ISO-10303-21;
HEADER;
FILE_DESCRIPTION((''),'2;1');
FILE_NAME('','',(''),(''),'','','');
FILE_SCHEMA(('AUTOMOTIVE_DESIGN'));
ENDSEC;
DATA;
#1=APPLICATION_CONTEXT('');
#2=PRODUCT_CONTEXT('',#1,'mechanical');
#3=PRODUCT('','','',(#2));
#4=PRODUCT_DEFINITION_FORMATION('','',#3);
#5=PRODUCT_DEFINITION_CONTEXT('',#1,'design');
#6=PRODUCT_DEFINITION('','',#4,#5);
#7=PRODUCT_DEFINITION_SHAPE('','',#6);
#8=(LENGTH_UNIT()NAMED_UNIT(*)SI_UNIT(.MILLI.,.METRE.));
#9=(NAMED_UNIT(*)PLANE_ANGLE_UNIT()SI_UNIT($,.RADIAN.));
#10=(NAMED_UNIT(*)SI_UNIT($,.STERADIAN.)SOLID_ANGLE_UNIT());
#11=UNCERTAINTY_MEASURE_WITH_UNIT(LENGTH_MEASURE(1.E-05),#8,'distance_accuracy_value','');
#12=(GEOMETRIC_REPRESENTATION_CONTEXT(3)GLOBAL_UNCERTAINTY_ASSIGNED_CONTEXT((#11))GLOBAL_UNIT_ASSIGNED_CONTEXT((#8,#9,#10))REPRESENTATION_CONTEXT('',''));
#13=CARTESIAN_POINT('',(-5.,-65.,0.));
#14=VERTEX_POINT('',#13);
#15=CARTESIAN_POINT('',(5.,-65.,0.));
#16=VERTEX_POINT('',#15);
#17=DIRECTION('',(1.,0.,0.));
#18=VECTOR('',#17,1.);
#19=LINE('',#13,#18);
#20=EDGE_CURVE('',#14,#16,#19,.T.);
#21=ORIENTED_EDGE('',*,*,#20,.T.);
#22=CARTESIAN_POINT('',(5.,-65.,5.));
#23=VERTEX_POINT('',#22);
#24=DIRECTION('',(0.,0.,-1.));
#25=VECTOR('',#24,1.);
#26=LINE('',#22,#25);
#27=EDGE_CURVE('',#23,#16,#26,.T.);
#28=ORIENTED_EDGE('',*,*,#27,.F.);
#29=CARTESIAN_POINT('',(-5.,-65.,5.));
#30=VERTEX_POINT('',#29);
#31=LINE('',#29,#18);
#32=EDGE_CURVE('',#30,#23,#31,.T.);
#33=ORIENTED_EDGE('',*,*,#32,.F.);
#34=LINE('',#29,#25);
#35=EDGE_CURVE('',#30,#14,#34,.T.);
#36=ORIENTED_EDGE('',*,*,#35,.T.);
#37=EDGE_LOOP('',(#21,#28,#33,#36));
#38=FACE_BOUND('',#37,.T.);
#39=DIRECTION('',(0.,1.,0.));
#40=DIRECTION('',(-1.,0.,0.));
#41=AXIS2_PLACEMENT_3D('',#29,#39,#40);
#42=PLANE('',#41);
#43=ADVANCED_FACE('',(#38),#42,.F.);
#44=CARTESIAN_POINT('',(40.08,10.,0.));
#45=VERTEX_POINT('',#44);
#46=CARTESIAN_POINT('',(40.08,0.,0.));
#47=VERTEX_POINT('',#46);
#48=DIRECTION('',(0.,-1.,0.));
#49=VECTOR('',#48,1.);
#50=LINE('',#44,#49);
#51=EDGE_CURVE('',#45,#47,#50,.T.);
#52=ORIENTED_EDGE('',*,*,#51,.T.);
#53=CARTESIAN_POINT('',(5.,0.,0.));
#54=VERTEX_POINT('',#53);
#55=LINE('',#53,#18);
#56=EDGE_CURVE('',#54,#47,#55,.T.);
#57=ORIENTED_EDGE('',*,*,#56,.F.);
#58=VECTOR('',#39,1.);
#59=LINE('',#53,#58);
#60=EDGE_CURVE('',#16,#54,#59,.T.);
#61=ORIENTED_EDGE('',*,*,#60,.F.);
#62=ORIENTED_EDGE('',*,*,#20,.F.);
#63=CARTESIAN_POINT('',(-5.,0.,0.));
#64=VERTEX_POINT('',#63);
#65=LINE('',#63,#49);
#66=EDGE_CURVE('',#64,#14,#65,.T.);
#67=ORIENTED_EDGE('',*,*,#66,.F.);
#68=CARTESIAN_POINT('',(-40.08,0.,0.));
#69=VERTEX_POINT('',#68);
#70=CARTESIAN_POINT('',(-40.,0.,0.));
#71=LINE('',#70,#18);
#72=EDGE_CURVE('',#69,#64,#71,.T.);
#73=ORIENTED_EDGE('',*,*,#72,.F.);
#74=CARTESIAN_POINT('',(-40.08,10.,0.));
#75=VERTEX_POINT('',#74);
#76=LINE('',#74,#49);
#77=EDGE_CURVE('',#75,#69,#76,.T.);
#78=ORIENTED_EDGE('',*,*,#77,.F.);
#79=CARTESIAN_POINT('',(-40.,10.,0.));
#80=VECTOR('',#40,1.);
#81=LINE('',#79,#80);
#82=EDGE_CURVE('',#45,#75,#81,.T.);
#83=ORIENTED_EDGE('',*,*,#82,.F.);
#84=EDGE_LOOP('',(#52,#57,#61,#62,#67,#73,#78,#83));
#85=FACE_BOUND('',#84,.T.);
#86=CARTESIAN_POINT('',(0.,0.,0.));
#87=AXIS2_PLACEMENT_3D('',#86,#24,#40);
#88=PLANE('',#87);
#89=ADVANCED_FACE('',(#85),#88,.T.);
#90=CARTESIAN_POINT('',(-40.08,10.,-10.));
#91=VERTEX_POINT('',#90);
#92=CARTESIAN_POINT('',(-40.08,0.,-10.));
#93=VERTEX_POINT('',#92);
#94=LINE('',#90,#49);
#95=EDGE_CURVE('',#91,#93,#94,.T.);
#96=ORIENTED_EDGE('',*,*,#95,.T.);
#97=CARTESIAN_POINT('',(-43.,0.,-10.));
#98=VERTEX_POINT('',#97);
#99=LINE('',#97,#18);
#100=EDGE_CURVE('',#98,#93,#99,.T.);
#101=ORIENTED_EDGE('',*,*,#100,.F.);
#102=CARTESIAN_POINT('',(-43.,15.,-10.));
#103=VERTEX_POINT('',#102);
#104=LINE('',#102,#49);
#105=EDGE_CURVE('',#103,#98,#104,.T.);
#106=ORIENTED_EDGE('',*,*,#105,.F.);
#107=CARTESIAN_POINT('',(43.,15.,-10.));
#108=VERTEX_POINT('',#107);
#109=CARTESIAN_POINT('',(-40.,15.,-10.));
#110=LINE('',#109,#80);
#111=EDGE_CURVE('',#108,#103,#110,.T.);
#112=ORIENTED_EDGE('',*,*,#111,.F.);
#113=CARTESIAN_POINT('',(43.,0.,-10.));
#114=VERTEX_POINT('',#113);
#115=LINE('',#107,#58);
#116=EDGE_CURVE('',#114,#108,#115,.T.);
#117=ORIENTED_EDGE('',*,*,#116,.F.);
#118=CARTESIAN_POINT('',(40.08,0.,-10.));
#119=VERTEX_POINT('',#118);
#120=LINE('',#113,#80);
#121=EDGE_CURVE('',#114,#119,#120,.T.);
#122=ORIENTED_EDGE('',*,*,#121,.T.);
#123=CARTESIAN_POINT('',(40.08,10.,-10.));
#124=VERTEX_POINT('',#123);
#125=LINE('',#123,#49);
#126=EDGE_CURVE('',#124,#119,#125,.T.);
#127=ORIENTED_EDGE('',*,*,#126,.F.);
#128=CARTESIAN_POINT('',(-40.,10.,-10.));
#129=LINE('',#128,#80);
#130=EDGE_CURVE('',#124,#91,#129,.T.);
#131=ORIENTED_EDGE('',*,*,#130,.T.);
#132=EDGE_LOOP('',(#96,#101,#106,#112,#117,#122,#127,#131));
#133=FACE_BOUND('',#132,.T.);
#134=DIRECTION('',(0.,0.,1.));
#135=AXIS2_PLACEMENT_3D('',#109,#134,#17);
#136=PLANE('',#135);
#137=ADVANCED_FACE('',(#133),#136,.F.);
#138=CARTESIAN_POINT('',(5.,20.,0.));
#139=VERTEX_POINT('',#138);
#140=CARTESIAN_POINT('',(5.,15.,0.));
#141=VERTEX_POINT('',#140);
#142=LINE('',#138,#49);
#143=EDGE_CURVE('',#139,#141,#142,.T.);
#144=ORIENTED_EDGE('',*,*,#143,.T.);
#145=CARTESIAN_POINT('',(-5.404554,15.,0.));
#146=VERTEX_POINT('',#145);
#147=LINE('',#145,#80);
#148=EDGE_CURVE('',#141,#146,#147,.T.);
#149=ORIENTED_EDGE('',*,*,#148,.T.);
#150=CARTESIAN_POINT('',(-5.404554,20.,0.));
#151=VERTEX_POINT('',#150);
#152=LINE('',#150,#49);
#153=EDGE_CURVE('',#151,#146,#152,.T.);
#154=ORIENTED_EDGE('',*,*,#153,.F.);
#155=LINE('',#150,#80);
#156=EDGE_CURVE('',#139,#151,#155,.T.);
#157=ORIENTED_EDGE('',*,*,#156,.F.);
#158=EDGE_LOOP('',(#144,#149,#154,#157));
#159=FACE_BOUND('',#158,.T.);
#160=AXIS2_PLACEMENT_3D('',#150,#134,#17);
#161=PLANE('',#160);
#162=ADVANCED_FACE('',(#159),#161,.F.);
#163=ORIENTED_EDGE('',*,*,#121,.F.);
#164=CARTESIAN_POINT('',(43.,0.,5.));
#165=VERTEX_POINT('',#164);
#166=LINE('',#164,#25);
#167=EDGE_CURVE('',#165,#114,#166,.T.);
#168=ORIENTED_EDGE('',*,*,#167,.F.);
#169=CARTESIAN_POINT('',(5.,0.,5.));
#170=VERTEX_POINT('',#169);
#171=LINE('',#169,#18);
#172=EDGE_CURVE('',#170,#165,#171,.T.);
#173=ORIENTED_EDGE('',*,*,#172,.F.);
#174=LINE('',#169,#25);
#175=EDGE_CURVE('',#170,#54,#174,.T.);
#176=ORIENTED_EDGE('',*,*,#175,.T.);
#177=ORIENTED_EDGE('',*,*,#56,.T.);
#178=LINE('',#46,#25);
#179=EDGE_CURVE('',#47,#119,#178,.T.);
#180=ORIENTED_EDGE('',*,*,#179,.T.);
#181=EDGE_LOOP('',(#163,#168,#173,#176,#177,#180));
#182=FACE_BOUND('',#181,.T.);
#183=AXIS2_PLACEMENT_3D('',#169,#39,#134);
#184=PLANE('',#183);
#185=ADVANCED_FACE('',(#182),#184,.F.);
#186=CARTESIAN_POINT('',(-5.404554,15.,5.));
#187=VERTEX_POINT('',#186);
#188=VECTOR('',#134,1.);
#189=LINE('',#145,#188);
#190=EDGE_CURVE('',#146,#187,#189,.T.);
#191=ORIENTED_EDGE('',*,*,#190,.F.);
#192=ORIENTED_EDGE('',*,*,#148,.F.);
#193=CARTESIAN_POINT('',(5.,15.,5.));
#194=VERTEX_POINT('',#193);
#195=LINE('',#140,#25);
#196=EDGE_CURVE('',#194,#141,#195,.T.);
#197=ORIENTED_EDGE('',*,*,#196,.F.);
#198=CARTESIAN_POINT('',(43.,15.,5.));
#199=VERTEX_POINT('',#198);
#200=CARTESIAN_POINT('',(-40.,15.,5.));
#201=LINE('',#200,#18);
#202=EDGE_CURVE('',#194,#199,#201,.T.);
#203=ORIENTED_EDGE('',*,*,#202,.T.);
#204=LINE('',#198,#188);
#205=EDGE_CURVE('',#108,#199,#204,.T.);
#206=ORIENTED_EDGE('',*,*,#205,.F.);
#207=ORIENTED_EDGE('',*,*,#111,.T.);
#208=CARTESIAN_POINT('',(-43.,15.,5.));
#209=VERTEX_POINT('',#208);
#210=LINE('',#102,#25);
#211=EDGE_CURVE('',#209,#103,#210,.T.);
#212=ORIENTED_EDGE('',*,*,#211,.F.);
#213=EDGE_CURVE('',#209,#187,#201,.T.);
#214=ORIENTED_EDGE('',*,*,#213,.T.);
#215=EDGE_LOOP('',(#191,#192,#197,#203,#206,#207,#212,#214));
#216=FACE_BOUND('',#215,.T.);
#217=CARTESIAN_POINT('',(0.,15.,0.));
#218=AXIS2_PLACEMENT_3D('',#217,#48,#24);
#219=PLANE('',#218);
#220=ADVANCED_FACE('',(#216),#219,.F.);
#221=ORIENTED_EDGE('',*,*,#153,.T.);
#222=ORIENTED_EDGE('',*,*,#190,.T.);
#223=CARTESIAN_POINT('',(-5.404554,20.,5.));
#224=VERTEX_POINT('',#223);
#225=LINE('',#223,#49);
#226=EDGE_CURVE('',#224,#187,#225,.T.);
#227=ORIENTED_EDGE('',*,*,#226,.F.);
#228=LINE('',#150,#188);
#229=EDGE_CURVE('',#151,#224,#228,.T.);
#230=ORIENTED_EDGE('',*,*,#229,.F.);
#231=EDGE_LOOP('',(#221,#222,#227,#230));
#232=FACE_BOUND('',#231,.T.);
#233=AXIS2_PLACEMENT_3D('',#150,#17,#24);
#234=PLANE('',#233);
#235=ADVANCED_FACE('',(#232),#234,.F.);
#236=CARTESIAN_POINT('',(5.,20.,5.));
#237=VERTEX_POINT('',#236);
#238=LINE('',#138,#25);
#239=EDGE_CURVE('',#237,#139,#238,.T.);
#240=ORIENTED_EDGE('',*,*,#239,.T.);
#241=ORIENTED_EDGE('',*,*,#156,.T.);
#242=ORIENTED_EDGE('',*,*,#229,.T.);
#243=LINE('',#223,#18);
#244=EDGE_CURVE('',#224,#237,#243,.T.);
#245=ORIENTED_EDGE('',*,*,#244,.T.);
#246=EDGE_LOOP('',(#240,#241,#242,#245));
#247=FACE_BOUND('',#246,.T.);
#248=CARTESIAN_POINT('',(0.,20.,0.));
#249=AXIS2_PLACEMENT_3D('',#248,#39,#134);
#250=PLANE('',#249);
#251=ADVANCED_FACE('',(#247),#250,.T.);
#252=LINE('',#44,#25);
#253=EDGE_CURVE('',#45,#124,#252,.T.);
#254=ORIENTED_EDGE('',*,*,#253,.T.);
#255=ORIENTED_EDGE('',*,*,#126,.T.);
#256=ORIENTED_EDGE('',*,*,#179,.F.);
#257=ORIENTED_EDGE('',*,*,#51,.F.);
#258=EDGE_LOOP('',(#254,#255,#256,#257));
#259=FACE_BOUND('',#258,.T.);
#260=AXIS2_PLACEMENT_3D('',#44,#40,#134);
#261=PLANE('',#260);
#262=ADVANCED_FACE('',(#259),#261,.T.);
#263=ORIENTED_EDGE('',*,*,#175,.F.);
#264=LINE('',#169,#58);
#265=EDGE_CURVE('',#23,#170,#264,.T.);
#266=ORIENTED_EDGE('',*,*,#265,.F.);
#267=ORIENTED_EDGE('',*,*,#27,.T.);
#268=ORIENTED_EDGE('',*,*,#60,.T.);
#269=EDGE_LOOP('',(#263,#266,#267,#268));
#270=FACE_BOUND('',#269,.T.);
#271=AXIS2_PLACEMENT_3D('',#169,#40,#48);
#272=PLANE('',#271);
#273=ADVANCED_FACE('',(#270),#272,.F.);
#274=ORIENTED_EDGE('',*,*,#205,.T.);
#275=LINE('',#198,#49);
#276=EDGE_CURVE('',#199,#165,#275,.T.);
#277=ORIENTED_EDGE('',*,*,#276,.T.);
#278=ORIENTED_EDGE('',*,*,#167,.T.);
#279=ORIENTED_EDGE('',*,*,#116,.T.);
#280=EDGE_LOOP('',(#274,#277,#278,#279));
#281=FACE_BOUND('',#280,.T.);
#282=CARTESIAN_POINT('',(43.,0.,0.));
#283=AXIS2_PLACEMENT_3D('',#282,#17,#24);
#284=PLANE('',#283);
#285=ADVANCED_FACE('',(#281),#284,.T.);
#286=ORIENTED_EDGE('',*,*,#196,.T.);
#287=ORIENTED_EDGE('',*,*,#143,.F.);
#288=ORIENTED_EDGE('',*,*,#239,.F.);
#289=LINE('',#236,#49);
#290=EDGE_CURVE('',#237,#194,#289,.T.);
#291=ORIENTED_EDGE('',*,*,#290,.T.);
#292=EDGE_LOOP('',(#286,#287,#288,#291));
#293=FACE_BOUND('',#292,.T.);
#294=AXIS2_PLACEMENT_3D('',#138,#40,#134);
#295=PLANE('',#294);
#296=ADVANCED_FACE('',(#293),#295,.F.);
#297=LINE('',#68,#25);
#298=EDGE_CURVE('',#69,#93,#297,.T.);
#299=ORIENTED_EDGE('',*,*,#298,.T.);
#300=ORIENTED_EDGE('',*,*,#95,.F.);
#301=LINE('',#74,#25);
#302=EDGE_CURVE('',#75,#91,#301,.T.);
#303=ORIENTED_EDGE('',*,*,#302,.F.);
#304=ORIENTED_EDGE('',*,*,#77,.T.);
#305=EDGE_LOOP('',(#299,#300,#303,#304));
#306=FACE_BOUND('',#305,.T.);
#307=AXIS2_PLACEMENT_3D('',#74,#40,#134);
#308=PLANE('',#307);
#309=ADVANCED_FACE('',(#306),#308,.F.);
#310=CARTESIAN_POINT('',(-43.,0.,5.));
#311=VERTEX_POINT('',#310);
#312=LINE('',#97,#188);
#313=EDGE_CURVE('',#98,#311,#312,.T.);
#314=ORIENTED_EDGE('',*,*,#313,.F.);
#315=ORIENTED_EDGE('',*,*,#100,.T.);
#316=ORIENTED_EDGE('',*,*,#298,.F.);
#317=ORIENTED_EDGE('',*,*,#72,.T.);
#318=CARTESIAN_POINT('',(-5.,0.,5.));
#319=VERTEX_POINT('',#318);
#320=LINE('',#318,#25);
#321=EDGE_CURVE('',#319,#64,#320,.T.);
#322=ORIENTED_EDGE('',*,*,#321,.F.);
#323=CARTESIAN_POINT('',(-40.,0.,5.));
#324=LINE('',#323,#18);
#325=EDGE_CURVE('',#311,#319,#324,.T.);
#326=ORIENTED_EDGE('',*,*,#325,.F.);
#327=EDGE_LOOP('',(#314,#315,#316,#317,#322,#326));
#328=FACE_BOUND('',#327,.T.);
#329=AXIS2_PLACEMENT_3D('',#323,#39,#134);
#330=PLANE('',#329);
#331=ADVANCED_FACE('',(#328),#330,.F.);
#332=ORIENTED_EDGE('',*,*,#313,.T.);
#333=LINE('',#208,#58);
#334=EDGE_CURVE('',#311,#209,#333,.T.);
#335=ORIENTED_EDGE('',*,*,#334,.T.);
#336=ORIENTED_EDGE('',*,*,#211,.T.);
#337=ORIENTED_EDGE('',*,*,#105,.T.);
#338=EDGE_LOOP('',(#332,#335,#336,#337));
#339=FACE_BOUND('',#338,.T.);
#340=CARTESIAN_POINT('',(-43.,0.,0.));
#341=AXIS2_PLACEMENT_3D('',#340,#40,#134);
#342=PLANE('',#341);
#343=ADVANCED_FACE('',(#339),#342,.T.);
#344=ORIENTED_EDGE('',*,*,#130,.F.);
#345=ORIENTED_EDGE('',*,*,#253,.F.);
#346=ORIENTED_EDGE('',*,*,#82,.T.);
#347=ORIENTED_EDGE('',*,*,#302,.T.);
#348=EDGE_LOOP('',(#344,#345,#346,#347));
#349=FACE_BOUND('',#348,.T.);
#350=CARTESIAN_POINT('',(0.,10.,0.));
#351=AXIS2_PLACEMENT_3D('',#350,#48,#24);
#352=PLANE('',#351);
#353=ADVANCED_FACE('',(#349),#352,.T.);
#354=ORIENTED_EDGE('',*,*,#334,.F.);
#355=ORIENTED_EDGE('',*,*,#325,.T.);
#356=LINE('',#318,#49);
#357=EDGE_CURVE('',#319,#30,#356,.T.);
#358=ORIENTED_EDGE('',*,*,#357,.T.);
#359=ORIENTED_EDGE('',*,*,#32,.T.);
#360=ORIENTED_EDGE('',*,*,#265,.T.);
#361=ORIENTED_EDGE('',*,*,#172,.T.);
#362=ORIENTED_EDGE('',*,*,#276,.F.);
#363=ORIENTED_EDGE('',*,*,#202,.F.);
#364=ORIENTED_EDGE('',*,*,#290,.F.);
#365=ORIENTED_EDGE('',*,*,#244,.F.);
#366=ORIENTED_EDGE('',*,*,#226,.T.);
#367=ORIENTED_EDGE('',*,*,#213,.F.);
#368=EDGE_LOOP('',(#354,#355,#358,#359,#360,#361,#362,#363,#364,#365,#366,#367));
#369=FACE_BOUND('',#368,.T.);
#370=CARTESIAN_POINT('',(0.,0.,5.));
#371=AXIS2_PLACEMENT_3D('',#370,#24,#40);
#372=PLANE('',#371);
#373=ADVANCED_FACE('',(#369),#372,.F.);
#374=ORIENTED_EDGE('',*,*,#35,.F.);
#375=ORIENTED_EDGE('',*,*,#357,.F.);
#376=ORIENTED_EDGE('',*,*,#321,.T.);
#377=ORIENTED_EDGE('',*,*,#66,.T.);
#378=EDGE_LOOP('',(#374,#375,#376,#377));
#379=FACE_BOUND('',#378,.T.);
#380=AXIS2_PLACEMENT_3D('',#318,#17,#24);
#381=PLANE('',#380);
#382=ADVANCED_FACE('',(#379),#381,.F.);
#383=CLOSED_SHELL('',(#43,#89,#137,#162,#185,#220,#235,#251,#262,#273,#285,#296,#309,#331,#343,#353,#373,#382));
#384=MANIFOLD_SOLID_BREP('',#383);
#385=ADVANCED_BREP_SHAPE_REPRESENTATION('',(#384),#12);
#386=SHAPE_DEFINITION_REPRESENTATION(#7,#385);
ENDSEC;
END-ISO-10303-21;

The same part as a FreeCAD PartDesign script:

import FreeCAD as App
import Part
import Sketcher

V = App.Vector
Q = App.Units.Quantity


def add_polygon(sketch, points):
    """Adds a closed chain of lines whose ends are joined by coincident constraints."""
    first, n = sketch.GeometryCount, len(points)
    for a, b in zip(points, points[1:] + points[:1]):
        sketch.addGeometry(Part.LineSegment(App.Vector(*a, 0), App.Vector(*b, 0)), False)
    for i in range(n):
        sketch.addConstraint(Sketcher.Constraint("Coincident", first + i, 2, first + (i + 1) % n, 1))

doc = App.newDocument("Part")
body = doc.addObject("PartDesign::Body", "Body")

# Sketch on XY plane
sketch1 = body.newObject("Sketcher::SketchObject", "Sketch")
sketch1.AttachmentSupport = (doc.getObject("XY_Plane"), [""])
sketch1.MapMode = "FlatFace"
add_polygon(sketch1, [(40, 10), (-40, 10), (-40, 0), (-5, 0), (-5, -65), (5, -65), (5, 0), (40, 0)])  # lines 0-7
sketch1.addConstraint([
    Sketcher.Constraint("Horizontal", 0),
    Sketcher.Constraint("Vertical", 1),
    Sketcher.Constraint("Horizontal", 2),
    Sketcher.Constraint("Vertical", 3),
    Sketcher.Constraint("Horizontal", 4),
    Sketcher.Constraint("Vertical", 5),
    Sketcher.Constraint("Horizontal", 6),
    Sketcher.Constraint("Vertical", 7),
    Sketcher.Constraint("Symmetric", 2, 2, 5, 2, -1, 1),
    Sketcher.Constraint("Symmetric", 1, 2, 6, 2, -2),
    Sketcher.Constraint("Equal", 4, 1),
    Sketcher.Constraint("DistanceX", 0, 2, 0, 1, Q("80 mm")),
    Sketcher.Constraint("DistanceX", 2, 1, 2, 2, Q("35 mm")),
    Sketcher.Constraint("DistanceY", 3, 2, 3, 1, Q("65 mm")),
])
pad1 = body.newObject("PartDesign::Pad", "Pad")
pad1.Profile = sketch1
pad1.Length = 5

# Sketch on XZ plane
sketch2 = body.newObject("Sketcher::SketchObject", "Sketch001")
sketch2.AttachmentSupport = (doc.getObject("XZ_Plane"), [""])
sketch2.MapMode = "FlatFace"
sketch2.AttachmentOffset = App.Placement(V(0, 0, -10), App.Rotation())
add_polygon(sketch2, [(-40, -10), (-40, 5), (40, 5), (40, -10)])  # lines 0-3
sketch2.addConstraint([
    Sketcher.Constraint("Vertical", 0),
    Sketcher.Constraint("Horizontal", 1),
    Sketcher.Constraint("Vertical", 2),
    Sketcher.Constraint("Horizontal", 3),
    Sketcher.Constraint("DistanceX", 1, 1, 1, 2, Q("80 mm")),
    Sketcher.Constraint("DistanceY", 0, 1, 0, 2, Q("15 mm")),
    Sketcher.Constraint("DistanceX", 0, 2, -1, 1, Q("40 mm")),
    Sketcher.Constraint("DistanceY", -1, 1, 0, 2, Q("5 mm")),
])
pad2 = body.newObject("PartDesign::Pad", "Pad001")
pad2.Profile = sketch2
pad2.Length = 5
pad2.Reversed = True

# Sketch on YZ plane
sketch3 = body.newObject("Sketcher::SketchObject", "Sketch002")
sketch3.AttachmentSupport = (doc.getObject("YZ_Plane"), [""])
sketch3.MapMode = "FlatFace"
sketch3.AttachmentOffset = App.Placement(V(0, 0, 40), App.Rotation())
add_polygon(sketch3, [(15, 5), (0, 5), (0, -10), (15, -10)])  # lines 0-3
sketch3.addConstraint([
    Sketcher.Constraint("Horizontal", 0),
    Sketcher.Constraint("Vertical", 1),
    Sketcher.Constraint("Horizontal", 2),
    Sketcher.Constraint("Vertical", 3),
    Sketcher.Constraint("PointOnObject", 0, 2, -2),
    Sketcher.Constraint("Equal", 2, 1),
    Sketcher.Constraint("DistanceX", 0, 2, 0, 1, Q("15 mm")),
    Sketcher.Constraint("DistanceY", -1, 1, 0, 2, Q("5 mm")),
])
pad3 = body.newObject("PartDesign::Pad", "Pad002")
pad3.Profile = sketch3
pad3.Length = 3

# Sketch on YZ plane
sketch4 = body.newObject("Sketcher::SketchObject", "Sketch003")
sketch4.AttachmentSupport = (doc.getObject("YZ_Plane"), [""])
sketch4.MapMode = "FlatFace"
sketch4.AttachmentOffset = App.Placement(V(0, 0, -40), App.Rotation())
add_polygon(sketch4, [(15, -10), (0, -10), (0, 5), (15, 5)])  # lines 0-3
sketch4.addConstraint([
    Sketcher.Constraint("Horizontal", 0),
    Sketcher.Constraint("Vertical", 1),
    Sketcher.Constraint("Horizontal", 2),
    Sketcher.Constraint("Vertical", 3),
    Sketcher.Constraint("PointOnObject", 0, 2, -2),
    Sketcher.Constraint("Equal", 2, 1),
    Sketcher.Constraint("DistanceX", 0, 2, 0, 1, Q("15 mm")),
    Sketcher.Constraint("DistanceY", 0, 2, -1, 1, Q("10 mm")),
])
pad4 = body.newObject("PartDesign::Pad", "Pad003")
pad4.Profile = sketch4
pad4.Length = 3
pad4.Reversed = True

# Sketch on XZ plane
sketch5 = body.newObject("Sketcher::SketchObject", "Sketch004")
sketch5.AttachmentSupport = (doc.getObject("XZ_Plane"), [""])
sketch5.MapMode = "FlatFace"
add_polygon(sketch5, [(-40.08, 0), (-40.08, -10), (-40, -10), (-40, 0)])  # lines 0-3
add_polygon(sketch5, [(40, 0), (40, -10), (40.08, -10), (40.08, 0)])  # lines 4-7
sketch5.addConstraint([
    Sketcher.Constraint("Vertical", 0),
    Sketcher.Constraint("Horizontal", 1),
    Sketcher.Constraint("Vertical", 2),
    Sketcher.Constraint("Horizontal", 3),
    Sketcher.Constraint("Vertical", 4),
    Sketcher.Constraint("Horizontal", 5),
    Sketcher.Constraint("Vertical", 6),
    Sketcher.Constraint("Horizontal", 7),
    Sketcher.Constraint("Symmetric", 3, 2, 6, 2, -1, 1),
    Sketcher.Constraint("Symmetric", 1, 2, 4, 2, -2),
    Sketcher.Constraint("PointOnObject", 2, 2, -1),
    Sketcher.Constraint("DistanceY", 0, 2, 0, 1, Q("10 mm")),
    Sketcher.Constraint("DistanceX", 1, 2, -1, 1, Q("40 mm")),
    Sketcher.Constraint("DistanceX", 1, 1, 1, 2, Q("0.08 mm")),
])
pocket1 = body.newObject("PartDesign::Pocket", "Pocket")
pocket1.Profile = sketch5
pocket1.Length = 10

# Sketch on XZ plane
sketch6 = body.newObject("Sketcher::SketchObject", "Sketch005")
sketch6.AttachmentSupport = (doc.getObject("XZ_Plane"), [""])
sketch6.MapMode = "FlatFace"
sketch6.AttachmentOffset = App.Placement(V(0, 0, -15), App.Rotation())
add_polygon(sketch6, [(-5, 0), (-5, 5), (5, 5), (5, 0)])  # lines 0-3
sketch6.addConstraint([
    Sketcher.Constraint("Vertical", 0),
    Sketcher.Constraint("Horizontal", 1),
    Sketcher.Constraint("Vertical", 2),
    Sketcher.Constraint("Horizontal", 3),
    Sketcher.Constraint("PointOnObject", 2, 2, -1),
    Sketcher.Constraint("DistanceY", 0, 1, 0, 2, Q("5 mm")),
    Sketcher.Constraint("DistanceX", -1, 1, 1, 2, Q("5 mm")),
    Sketcher.Constraint("DistanceX", 1, 1, 1, 2, Q("10.404554 mm")),
])
pad5 = body.newObject("PartDesign::Pad", "Pad004")
pad5.Profile = sketch6
pad5.Length = 5
pad5.Reversed = True

doc.recompute()
